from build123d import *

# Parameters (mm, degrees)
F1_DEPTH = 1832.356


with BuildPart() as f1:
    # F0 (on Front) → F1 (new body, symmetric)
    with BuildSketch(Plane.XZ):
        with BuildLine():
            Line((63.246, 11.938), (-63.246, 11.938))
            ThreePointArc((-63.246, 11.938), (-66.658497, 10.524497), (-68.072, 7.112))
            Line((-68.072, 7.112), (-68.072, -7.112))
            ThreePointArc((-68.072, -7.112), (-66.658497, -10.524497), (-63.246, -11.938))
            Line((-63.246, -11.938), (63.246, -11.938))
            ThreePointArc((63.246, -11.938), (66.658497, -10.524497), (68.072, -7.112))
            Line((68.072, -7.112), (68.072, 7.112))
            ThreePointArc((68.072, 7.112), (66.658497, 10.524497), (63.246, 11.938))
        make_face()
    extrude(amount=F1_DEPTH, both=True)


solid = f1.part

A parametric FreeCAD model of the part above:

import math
import FreeCAD as App
import Part
import Sketcher
from FreeCAD import Vector
Q = App.Units.Quantity

doc = App.newDocument("Part")
body = doc.addObject("PartDesign::Body", "Body")

# Sketch on XZ plane
sketch1 = body.newObject("Sketcher::SketchObject", "Sketch")
sketch1.AttachmentSupport = (doc.getObject("XZ_Plane"), [""])
sketch1.MapMode = "FlatFace"
sketch1.addGeometry(Part.LineSegment(Vector(63.2, 11.9, 0), Vector(-63.2, 11.9, 0)), False)
sketch1.addGeometry(Part.ArcOfCircle(Part.Circle(Vector(-63.2, 7.1, 0), Vector(0, 0, 1), 4.8), math.radians(90), math.radians(180)), False)
sketch1.addGeometry(Part.LineSegment(Vector(-68.1, 7.1, 0), Vector(-68.1, -7.1, 0)), False)
sketch1.addGeometry(Part.ArcOfCircle(Part.Circle(Vector(-63.2, -7.1, 0), Vector(0, 0, 1), 4.8), math.radians(-180), math.radians(-90)), False)
sketch1.addGeometry(Part.LineSegment(Vector(-63.2, -11.9, 0), Vector(63.2, -11.9, 0)), False)
sketch1.addGeometry(Part.ArcOfCircle(Part.Circle(Vector(63.2, -7.1, 0), Vector(0, 0, 1), 4.8), math.radians(-90), math.radians(0)), False)
sketch1.addGeometry(Part.LineSegment(Vector(68.1, -7.1, 0), Vector(68.1, 7.1, 0)), False)
sketch1.addGeometry(Part.ArcOfCircle(Part.Circle(Vector(63.2, 7.1, 0), Vector(0, 0, 1), 4.8), math.radians(0), math.radians(90)), False)
sketch1.addConstraint(Sketcher.Constraint("Tangent", 0, 2, 1, 1))
sketch1.addConstraint(Sketcher.Constraint("Tangent", 1, 2, 2, 1))
sketch1.addConstraint(Sketcher.Constraint("Tangent", 2, 2, 3, 1))
sketch1.addConstraint(Sketcher.Constraint("Tangent", 3, 2, 4, 1))
sketch1.addConstraint(Sketcher.Constraint("Tangent", 4, 2, 5, 1))
sketch1.addConstraint(Sketcher.Constraint("Tangent", 5, 2, 6, 1))
sketch1.addConstraint(Sketcher.Constraint("Tangent", 6, 2, 7, 1))
sketch1.addConstraint(Sketcher.Constraint("Tangent", 7, 2, 0, 1))
sketch1.addConstraint(Sketcher.Constraint("Horizontal", 0))
sketch1.addConstraint(Sketcher.Constraint("Vertical", 2))
sketch1.addConstraint(Sketcher.Constraint("Horizontal", 4))
sketch1.addConstraint(Sketcher.Constraint("Vertical", 6))
sketch1.addConstraint(Sketcher.Constraint("Equal", 1, 3))
sketch1.addConstraint(Sketcher.Constraint("Equal", 3, 5))
sketch1.addConstraint(Sketcher.Constraint("Equal", 5, 7))
sketch1.addConstraint(Sketcher.Constraint("Symmetric", 1, 3, 5, 3, -1, 1))
sketch1.addConstraint(Sketcher.Constraint("Radius", 1, Q("0.19 in")))
sketch1.addConstraint(Sketcher.Constraint("DistanceX", 0, 2, 0, 1, Q("4.98 in")))
sketch1.addConstraint(Sketcher.Constraint("DistanceY", 2, 2, 2, 1, Q("0.56 in")))
pad1 = body.newObject("PartDesign::Pad", "Pad")
pad1.Profile = sketch1
pad1.Length = Q("144.28 in")
pad1.Midplane = True

doc.recompute()
